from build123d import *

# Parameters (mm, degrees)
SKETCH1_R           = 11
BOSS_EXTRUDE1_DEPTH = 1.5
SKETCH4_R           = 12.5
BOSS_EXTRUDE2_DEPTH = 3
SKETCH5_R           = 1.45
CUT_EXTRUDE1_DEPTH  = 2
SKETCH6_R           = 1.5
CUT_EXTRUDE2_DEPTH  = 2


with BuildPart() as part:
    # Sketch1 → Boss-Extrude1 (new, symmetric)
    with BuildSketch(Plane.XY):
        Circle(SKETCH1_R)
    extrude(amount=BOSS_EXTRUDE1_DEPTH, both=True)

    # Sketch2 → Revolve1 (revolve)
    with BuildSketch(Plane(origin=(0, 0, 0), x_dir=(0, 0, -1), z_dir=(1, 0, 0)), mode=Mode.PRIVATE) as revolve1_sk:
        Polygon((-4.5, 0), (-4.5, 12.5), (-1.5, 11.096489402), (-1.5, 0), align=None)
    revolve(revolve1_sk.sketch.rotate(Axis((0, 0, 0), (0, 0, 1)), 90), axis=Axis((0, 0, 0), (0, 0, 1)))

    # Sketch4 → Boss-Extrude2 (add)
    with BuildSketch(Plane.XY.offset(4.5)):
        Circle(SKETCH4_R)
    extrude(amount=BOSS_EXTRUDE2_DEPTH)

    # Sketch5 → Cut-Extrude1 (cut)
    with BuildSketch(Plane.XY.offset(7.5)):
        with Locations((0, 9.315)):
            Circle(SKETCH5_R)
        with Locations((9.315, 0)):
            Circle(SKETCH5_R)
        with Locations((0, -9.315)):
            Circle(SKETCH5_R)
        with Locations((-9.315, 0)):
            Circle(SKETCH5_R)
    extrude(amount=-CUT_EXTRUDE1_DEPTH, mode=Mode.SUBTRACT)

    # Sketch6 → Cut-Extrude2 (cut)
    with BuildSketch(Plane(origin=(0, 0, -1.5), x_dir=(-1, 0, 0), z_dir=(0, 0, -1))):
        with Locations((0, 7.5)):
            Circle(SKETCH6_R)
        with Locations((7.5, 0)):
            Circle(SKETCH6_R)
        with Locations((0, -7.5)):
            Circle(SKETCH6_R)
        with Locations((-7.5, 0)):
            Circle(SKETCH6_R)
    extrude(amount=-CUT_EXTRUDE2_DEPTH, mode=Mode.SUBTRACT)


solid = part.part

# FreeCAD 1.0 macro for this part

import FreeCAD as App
import Part
import Sketcher


def add_polygon(sketch, points):
    """Adds a closed chain of lines whose ends are joined by coincident constraints."""
    first, n = sketch.GeometryCount, len(points)
    for a, b in zip(points, points[1:] + points[:1]):
        sketch.addGeometry(Part.LineSegment(App.Vector(*a, 0), App.Vector(*b, 0)), False)
    for i in range(n):
        sketch.addConstraint(Sketcher.Constraint("Coincident", first + i, 2, first + (i + 1) % n, 1))

doc = App.newDocument("Part")
params = doc.addObject("Spreadsheet::Sheet", "Params")
for row, (alias, value) in enumerate([
    ("sketch1_diameter", "22 mm"),
    ("pad1_length", "3 mm"),
    ("sketch2_height", "3 mm"),
    ("sketch2_width", "12.5 mm"),
    ("revolution_angle", "360 deg"),
    ("sketch3_diameter", "25 mm"),
    ("pad2_length", "3 mm"),
    ("sketch4_diameter", "2.9 mm"),
    ("pocket1_length", "2 mm"),
    ("sketch5_diameter", "3 mm"),
    ("pocket2_length", "2 mm"),
], start=1):
    params.set(f"A{row}", alias)
    params.set(f"B{row}", "=" + value)
    params.setAlias(f"B{row}", alias)

body = doc.addObject("PartDesign::Body", "Body")

sketch1 = body.newObject("Sketcher::SketchObject", "Sketch")
sketch1.AttachmentSupport = (doc.getObject("XY_Plane"), [""])
sketch1.MapMode = "FlatFace"
sketch1.addGeometry(Part.Circle(App.Vector(0, 0, 0), App.Vector(0, 0, 1), 11), False)
sketch1.addConstraint(Sketcher.Constraint("Coincident", 0, 3, -1, 1))
sketch1.addConstraint(Sketcher.Constraint("Diameter", 0, 22.0))
sketch1.setExpression("Constraints[1]", "Params.sketch1_diameter")
pad1 = body.newObject("PartDesign::Pad", "Pad")
pad1.Profile = sketch1
pad1.setExpression("Length", "Params.pad1_length")
pad1.Midplane = True

sketch2 = body.newObject("Sketcher::SketchObject", "Sketch001")
sketch2.AttachmentSupport = (doc.getObject("YZ_Plane"), [""])
sketch2.MapMode = "FlatFace"
add_polygon(sketch2, [(12.5, 4.5), (0, 4.5), (0, 1.5), (11.096489, 1.5)])
sketch2.addConstraint(Sketcher.Constraint("Horizontal", 0))
sketch2.addConstraint(Sketcher.Constraint("Vertical", 1))
sketch2.addConstraint(Sketcher.Constraint("Horizontal", 2))
sketch2.addConstraint(Sketcher.Constraint("PointOnObject", 0, 2, -2))
sketch2.addConstraint(Sketcher.Constraint("DistanceY", 1, 2, 1, 1, 3.0))
sketch2.addConstraint(Sketcher.Constraint("DistanceX", 0, 2, 0, 1, 12.5))
sketch2.addConstraint(Sketcher.Constraint("DistanceY", -1, 1, 0, 2, 4.5))
sketch2.addConstraint(Sketcher.Constraint("DistanceX", 2, 1, 2, 2, 11.096489))
sketch2.setExpression("Constraints[8]", "Params.sketch2_height")
sketch2.setExpression("Constraints[9]", "Params.sketch2_width")
revolution = body.newObject("PartDesign::Revolution", "Revolution")
revolution.Profile = sketch2
revolution.ReferenceAxis = (sketch2, ["V_Axis"])
revolution.setExpression("Angle", "Params.revolution_angle")

sketch3 = body.newObject("Sketcher::SketchObject", "Sketch002")
sketch3.AttachmentSupport = (doc.getObject("XY_Plane"), [""])
sketch3.MapMode = "FlatFace"
sketch3.AttachmentOffset = App.Placement(App.Vector(0, 0, 4.5), App.Rotation())
sketch3.addGeometry(Part.Circle(App.Vector(0, 0, 0), App.Vector(0, 0, 1), 12.5), False)
sketch3.addConstraint(Sketcher.Constraint("Coincident", 0, 3, -1, 1))
sketch3.addConstraint(Sketcher.Constraint("Diameter", 0, 25.0))
sketch3.setExpression("Constraints[1]", "Params.sketch3_diameter")
pad2 = body.newObject("PartDesign::Pad", "Pad001")
pad2.Profile = sketch3
pad2.setExpression("Length", "Params.pad2_length")

sketch4 = body.newObject("Sketcher::SketchObject", "Sketch003")
sketch4.AttachmentSupport = (doc.getObject("XY_Plane"), [""])
sketch4.MapMode = "FlatFace"
sketch4.AttachmentOffset = App.Placement(App.Vector(0, 0, 7.5), App.Rotation())
sketch4.addGeometry(Part.Circle(App.Vector(0, 9.315, 0), App.Vector(0, 0, 1), 1.45), False)
sketch4.addGeometry(Part.Circle(App.Vector(9.315, 0, 0), App.Vector(0, 0, 1), 1.45), False)
sketch4.addGeometry(Part.Circle(App.Vector(0, -9.315, 0), App.Vector(0, 0, 1), 1.45), False)
sketch4.addGeometry(Part.Circle(App.Vector(-9.315, 0, 0), App.Vector(0, 0, 1), 1.45), False)
sketch4.addConstraint(Sketcher.Constraint("Equal", 0, 1))
sketch4.addConstraint(Sketcher.Constraint("Equal", 1, 2))
sketch4.addConstraint(Sketcher.Constraint("Equal", 2, 3))
sketch4.addConstraint(Sketcher.Constraint("Symmetric", 0, 3, 2, 3, -1, 1))
sketch4.addConstraint(Sketcher.Constraint("Symmetric", 1, 3, 3, 3, -1, 1))
sketch4.addConstraint(Sketcher.Constraint("PointOnObject", 0, 3, -2))
sketch4.addConstraint(Sketcher.Constraint("PointOnObject", 1, 3, -1))
sketch4.addConstraint(Sketcher.Constraint("Diameter", 0, 2.9))
sketch4.addConstraint(Sketcher.Constraint("DistanceY", 2, 3, 0, 3, 18.63))
sketch4.addConstraint(Sketcher.Constraint("DistanceX", 3, 3, 1, 3, 18.63))
sketch4.setExpression("Constraints[7]", "Params.sketch4_diameter")
pocket1 = body.newObject("PartDesign::Pocket", "Pocket")
pocket1.Profile = sketch4
pocket1.setExpression("Length", "Params.pocket1_length")

sketch5 = body.newObject("Sketcher::SketchObject", "Sketch004")
sketch5.AttachmentSupport = (doc.getObject("XY_Plane"), [""])
sketch5.MapMode = "FlatFace"
sketch5.AttachmentOffset = App.Placement(App.Vector(0, 0, -1.5), App.Rotation())
sketch5.addGeometry(Part.Circle(App.Vector(0, 7.5, 0), App.Vector(0, 0, 1), 1.5), False)
sketch5.addGeometry(Part.Circle(App.Vector(-7.5, 0, 0), App.Vector(0, 0, 1), 1.5), False)
sketch5.addGeometry(Part.Circle(App.Vector(0, -7.5, 0), App.Vector(0, 0, 1), 1.5), False)
sketch5.addGeometry(Part.Circle(App.Vector(7.5, 0, 0), App.Vector(0, 0, 1), 1.5), False)
sketch5.addConstraint(Sketcher.Constraint("Equal", 0, 1))
sketch5.addConstraint(Sketcher.Constraint("Equal", 1, 2))
sketch5.addConstraint(Sketcher.Constraint("Equal", 2, 3))
sketch5.addConstraint(Sketcher.Constraint("Symmetric", 0, 3, 2, 3, -1, 1))
sketch5.addConstraint(Sketcher.Constraint("Symmetric", 1, 3, 3, 3, -1, 1))
sketch5.addConstraint(Sketcher.Constraint("PointOnObject", 0, 3, -2))
sketch5.addConstraint(Sketcher.Constraint("PointOnObject", 1, 3, -1))
sketch5.addConstraint(Sketcher.Constraint("Diameter", 0, 3.0))
sketch5.addConstraint(Sketcher.Constraint("DistanceY", 2, 3, 0, 3, 15.0))
sketch5.addConstraint(Sketcher.Constraint("DistanceX", 1, 3, 3, 3, 15.0))
sketch5.setExpression("Constraints[7]", "Params.sketch5_diameter")
pocket2 = body.newObject("PartDesign::Pocket", "Pocket001")
pocket2.Profile = sketch5
pocket2.setExpression("Length", "Params.pocket2_length")
pocket2.Reversed = True

doc.recompute()
